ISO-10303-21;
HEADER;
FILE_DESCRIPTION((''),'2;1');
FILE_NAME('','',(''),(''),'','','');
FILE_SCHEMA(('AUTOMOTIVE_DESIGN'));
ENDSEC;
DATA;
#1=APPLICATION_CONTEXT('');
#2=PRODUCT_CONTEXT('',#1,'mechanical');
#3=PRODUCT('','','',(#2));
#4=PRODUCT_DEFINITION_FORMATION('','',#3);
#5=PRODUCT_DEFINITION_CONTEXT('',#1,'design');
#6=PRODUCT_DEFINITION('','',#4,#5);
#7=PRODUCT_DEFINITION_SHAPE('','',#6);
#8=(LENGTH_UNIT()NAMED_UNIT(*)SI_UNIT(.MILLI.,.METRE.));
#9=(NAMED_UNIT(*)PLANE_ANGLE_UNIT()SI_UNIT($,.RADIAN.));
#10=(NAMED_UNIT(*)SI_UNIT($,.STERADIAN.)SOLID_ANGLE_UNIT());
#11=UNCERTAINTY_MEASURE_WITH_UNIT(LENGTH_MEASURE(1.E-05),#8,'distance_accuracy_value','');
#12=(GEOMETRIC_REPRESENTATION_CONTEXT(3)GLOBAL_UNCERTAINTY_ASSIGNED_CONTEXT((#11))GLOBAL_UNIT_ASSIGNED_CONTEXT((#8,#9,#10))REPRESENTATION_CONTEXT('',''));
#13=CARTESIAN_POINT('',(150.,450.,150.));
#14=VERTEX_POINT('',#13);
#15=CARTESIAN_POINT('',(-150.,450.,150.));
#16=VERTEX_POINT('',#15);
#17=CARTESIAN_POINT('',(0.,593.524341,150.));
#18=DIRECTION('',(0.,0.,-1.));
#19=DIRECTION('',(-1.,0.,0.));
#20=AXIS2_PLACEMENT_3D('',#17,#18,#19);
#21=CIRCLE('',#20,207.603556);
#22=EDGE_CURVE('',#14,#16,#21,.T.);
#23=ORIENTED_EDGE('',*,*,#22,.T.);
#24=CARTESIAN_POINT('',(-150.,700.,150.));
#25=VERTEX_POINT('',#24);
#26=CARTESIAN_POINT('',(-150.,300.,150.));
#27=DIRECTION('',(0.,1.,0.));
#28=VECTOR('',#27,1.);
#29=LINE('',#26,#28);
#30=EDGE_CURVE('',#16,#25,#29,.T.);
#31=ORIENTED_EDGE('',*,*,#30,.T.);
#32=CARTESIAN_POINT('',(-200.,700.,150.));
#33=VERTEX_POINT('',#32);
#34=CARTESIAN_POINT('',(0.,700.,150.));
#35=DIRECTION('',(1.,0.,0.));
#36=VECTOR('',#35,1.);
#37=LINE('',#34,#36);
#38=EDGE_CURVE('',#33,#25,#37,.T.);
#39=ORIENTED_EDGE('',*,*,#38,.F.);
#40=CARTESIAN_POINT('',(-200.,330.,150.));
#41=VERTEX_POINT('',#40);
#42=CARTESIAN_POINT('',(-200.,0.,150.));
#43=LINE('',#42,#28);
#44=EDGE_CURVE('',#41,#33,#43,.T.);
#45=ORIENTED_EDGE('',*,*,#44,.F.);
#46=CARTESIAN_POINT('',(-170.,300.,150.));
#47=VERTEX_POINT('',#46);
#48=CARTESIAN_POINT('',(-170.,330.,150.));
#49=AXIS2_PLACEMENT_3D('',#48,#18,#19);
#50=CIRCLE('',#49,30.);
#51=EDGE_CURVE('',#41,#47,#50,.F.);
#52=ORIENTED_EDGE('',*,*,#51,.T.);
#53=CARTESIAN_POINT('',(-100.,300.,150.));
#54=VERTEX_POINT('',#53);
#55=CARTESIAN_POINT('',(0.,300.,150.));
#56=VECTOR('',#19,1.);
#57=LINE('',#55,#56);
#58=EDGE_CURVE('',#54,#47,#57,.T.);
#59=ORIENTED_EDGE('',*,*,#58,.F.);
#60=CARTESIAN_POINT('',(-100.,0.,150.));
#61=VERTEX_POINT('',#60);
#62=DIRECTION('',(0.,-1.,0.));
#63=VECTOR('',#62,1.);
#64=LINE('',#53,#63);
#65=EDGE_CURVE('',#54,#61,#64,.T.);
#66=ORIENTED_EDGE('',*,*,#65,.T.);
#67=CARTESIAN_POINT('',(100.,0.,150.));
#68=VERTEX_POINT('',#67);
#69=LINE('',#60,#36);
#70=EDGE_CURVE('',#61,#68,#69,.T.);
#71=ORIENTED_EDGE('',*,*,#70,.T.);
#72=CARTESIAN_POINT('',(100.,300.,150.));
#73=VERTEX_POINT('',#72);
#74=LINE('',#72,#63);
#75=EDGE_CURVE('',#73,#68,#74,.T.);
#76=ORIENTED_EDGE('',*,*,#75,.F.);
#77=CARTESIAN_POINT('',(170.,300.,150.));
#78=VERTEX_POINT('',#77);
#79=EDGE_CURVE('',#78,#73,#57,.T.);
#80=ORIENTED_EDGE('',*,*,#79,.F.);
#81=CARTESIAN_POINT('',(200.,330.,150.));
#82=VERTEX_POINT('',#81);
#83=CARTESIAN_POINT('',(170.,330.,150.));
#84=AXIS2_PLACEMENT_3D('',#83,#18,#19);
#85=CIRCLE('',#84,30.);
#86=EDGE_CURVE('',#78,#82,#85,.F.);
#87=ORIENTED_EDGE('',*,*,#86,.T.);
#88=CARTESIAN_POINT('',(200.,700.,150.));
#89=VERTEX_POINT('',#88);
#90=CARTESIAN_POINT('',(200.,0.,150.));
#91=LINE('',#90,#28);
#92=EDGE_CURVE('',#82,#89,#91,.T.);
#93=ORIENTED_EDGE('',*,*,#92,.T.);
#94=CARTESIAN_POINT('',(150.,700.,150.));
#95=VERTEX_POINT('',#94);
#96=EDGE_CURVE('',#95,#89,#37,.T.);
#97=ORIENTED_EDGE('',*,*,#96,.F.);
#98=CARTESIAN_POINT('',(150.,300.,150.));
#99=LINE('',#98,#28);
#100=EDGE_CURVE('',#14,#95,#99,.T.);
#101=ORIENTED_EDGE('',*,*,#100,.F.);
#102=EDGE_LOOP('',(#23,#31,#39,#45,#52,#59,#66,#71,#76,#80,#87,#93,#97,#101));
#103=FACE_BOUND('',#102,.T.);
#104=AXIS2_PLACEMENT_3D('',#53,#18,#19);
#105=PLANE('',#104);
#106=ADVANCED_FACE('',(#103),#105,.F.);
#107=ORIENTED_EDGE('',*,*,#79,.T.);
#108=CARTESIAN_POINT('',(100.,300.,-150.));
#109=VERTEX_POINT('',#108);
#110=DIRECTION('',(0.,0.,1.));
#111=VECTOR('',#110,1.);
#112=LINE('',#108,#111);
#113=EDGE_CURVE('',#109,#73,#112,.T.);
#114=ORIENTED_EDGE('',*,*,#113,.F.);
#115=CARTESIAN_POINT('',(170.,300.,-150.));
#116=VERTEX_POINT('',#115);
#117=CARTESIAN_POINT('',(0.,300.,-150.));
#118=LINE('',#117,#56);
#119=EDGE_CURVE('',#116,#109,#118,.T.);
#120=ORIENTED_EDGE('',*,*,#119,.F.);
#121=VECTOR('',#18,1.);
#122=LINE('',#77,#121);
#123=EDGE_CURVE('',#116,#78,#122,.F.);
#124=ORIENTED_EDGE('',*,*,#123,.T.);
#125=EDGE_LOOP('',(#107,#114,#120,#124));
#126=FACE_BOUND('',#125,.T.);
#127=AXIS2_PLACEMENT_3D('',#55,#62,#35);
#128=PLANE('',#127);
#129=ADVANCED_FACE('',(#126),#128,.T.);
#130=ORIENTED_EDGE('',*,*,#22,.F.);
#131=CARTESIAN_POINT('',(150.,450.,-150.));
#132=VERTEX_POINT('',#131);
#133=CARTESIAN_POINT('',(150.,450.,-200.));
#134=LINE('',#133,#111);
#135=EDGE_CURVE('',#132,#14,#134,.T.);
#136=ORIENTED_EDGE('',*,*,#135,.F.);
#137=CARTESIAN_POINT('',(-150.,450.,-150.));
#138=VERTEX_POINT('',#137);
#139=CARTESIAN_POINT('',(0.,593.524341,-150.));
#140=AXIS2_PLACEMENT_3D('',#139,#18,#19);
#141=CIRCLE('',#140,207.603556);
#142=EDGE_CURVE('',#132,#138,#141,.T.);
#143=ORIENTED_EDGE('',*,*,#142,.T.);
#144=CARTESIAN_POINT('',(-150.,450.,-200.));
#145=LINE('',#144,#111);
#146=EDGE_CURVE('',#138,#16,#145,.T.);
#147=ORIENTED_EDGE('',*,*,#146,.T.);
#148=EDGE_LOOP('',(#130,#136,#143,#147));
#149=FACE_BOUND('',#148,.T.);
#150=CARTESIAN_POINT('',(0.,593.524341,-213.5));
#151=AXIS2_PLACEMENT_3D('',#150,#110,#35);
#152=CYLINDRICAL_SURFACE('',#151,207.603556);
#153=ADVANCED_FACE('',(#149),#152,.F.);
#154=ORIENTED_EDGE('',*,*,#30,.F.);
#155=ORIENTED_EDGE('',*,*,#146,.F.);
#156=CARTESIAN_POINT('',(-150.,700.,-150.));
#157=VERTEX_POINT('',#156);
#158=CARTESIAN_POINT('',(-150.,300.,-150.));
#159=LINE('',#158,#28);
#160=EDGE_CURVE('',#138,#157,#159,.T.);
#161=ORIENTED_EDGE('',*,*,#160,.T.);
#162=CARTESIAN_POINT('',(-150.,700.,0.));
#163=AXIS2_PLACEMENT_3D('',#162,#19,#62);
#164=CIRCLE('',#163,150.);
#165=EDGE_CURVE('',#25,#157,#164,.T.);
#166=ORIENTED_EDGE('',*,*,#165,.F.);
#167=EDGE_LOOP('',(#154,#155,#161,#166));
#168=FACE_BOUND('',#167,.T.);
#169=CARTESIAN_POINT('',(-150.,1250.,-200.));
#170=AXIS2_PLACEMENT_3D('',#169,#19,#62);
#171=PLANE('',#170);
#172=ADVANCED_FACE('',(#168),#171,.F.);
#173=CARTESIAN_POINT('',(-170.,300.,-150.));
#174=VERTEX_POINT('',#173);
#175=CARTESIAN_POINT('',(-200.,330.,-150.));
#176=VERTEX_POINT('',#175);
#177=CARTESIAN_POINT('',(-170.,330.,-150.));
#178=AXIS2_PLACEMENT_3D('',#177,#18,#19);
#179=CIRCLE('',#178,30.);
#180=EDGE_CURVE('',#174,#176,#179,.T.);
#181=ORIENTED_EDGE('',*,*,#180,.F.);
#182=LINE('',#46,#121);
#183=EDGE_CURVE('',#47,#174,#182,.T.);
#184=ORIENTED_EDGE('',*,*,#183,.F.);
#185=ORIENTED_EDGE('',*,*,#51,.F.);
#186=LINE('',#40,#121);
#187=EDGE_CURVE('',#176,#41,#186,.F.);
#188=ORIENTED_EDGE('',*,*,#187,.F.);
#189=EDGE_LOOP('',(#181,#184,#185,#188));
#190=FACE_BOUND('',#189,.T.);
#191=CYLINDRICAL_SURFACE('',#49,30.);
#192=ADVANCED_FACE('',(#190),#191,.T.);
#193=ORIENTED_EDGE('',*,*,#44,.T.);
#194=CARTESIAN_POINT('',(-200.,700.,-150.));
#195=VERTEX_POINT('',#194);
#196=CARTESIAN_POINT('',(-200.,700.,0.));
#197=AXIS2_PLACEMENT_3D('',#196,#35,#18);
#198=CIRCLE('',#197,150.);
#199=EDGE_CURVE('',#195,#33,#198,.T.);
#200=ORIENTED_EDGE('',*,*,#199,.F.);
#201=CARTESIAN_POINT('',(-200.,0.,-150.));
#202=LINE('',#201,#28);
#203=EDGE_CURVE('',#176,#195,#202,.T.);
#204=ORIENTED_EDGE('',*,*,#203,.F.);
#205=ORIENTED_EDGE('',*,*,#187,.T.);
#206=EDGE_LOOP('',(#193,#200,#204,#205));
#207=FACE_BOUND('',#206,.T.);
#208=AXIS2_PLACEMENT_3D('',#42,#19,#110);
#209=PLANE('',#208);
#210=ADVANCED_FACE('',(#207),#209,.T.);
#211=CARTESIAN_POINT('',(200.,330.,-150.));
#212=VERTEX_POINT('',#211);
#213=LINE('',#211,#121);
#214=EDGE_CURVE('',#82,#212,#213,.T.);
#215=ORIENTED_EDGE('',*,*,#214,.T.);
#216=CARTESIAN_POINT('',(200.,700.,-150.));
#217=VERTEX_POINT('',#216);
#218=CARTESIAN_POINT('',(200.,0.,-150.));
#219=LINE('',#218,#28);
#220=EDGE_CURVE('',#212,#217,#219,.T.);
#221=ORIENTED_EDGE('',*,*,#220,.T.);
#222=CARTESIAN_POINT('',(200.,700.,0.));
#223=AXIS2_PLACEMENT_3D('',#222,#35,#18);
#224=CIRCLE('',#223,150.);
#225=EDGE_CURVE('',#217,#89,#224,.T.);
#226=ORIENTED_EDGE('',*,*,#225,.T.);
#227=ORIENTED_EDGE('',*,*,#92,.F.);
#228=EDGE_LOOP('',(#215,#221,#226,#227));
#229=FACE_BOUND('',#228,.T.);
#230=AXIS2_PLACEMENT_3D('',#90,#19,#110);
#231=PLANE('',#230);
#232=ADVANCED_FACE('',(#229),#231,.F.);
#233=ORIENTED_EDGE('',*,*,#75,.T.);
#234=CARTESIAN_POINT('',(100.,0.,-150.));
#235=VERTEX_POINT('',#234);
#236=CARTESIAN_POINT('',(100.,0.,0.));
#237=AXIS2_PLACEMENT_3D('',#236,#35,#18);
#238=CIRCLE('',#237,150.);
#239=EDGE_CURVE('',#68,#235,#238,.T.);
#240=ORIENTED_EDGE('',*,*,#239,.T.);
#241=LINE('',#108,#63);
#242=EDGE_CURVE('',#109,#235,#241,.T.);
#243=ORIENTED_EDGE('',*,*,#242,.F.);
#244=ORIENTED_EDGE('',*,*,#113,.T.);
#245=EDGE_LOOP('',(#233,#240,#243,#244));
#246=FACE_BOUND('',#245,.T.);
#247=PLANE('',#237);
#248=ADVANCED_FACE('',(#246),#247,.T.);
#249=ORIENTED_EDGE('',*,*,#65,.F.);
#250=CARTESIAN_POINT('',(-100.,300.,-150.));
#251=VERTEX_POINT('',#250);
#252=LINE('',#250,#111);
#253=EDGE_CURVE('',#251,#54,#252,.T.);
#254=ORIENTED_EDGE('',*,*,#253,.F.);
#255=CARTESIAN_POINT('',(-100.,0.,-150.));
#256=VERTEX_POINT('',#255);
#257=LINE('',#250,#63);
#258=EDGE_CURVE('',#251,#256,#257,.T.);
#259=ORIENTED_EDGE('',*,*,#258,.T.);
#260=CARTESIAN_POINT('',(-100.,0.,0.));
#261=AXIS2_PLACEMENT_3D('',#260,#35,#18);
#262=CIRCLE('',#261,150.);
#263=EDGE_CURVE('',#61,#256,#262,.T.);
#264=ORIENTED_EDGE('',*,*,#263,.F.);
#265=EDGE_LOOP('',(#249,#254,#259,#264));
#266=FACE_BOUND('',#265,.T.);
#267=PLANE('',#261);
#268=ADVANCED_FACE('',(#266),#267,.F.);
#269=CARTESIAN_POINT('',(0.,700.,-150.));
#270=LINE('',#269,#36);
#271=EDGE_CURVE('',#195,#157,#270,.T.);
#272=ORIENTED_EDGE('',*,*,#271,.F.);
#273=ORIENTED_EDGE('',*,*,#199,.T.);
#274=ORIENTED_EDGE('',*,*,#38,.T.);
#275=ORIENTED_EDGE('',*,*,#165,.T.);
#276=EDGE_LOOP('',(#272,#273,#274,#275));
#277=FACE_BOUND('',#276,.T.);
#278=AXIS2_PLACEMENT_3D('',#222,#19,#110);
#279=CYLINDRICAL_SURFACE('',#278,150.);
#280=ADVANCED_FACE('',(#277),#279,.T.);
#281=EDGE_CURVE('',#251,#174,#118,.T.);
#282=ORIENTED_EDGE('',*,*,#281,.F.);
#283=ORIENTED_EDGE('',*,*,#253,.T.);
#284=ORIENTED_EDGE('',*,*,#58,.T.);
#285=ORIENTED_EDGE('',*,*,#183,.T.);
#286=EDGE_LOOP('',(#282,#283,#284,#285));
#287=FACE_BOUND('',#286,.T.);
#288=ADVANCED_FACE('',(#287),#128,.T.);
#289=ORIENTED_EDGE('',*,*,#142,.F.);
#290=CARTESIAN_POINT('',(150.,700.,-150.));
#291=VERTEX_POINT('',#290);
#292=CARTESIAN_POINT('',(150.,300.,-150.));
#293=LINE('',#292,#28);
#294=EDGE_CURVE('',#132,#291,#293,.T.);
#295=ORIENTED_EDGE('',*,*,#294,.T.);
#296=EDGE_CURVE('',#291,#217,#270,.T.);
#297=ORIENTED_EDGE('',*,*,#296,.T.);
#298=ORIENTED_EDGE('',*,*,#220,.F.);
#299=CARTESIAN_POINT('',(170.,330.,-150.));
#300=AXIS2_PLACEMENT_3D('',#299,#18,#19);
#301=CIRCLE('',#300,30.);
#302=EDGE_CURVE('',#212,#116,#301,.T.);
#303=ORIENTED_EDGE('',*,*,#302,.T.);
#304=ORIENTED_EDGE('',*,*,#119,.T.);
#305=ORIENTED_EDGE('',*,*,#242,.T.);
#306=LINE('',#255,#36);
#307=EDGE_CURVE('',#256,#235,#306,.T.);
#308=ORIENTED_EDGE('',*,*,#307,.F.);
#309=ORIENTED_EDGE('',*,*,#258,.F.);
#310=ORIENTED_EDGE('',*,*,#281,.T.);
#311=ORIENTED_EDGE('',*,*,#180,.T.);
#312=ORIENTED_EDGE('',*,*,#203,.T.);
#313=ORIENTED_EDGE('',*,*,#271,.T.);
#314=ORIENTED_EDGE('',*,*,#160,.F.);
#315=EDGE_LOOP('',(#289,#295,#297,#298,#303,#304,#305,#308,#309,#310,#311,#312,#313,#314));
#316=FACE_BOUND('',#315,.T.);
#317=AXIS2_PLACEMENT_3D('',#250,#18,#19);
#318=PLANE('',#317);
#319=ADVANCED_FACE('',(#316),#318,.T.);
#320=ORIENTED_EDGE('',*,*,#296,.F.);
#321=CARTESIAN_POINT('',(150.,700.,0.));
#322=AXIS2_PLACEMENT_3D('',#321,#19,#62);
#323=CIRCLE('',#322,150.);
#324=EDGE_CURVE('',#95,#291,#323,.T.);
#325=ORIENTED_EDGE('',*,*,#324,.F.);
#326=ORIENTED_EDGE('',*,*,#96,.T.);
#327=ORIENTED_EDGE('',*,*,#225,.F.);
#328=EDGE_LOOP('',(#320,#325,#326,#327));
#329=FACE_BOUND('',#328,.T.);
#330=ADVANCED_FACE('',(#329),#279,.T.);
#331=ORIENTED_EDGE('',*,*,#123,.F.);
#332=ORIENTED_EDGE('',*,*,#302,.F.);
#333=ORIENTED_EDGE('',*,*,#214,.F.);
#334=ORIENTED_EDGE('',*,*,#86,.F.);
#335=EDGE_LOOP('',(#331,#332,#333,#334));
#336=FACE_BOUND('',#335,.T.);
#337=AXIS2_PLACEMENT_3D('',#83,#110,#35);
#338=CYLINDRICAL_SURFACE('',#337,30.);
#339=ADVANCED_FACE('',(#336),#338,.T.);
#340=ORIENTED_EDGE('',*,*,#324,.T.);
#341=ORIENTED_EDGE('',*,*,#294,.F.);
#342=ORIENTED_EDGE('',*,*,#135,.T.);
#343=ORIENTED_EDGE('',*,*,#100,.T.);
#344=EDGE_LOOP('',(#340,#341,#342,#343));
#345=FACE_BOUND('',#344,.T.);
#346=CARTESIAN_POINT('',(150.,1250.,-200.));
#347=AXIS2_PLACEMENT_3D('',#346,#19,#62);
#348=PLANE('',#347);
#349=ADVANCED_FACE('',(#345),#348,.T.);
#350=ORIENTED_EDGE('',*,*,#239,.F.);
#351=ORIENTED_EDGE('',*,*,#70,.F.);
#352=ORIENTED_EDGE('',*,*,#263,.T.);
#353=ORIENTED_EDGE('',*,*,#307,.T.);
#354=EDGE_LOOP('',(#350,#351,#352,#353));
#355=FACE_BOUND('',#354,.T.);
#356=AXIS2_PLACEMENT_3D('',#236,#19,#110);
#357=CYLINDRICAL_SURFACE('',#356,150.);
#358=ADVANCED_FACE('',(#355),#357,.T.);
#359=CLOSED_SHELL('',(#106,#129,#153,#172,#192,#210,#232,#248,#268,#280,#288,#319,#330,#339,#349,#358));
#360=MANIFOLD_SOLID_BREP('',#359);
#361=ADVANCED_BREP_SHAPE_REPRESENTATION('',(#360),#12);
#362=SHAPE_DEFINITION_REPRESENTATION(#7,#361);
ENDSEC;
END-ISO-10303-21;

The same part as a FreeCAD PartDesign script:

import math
import FreeCAD as App
import Part
import Sketcher

V = App.Vector


def edges_at(feature, points):
    """Names of the edges that pass closest to the given points."""
    edges = feature.Shape.Edges
    near = lambda p: min(range(len(edges)), key=lambda i: edges[i].distToShape(Part.Vertex(*p))[0])
    return sorted({f"Edge{near(p) + 1}" for p in points})

doc = App.newDocument("Part")
body = doc.addObject("PartDesign::Body", "Body")

# Sketch on YZ plane
sketch1 = body.newObject("Sketcher::SketchObject", "Sketch")
sketch1.AttachmentSupport = (doc.getObject("YZ_Plane"), [""])
sketch1.MapMode = "FlatFace"
sketch1.addGeometry(Part.Circle(V(0, 0, 0), V(0, 0, 1), 150), False)
sketch1.addConstraint([
    Sketcher.Constraint("Coincident", 0, 3, -1, 1),
    Sketcher.Constraint("Diameter", 0, 300.0),
])
pad1 = body.newObject("PartDesign::Pad", "Pad")
pad1.Profile = sketch1
pad1.Length = 200
pad1.Midplane = True

# Sketch on XZ plane
sketch2 = body.newObject("Sketcher::SketchObject", "Sketch001")
sketch2.AttachmentSupport = (doc.getObject("XZ_Plane"), [""])
sketch2.MapMode = "FlatFace"
sketch2.addGeometry([
    Part.LineSegment(V(-100, -150, 0), V(-100, 150, 0)),
    Part.LineSegment(V(-100, 150, 0), V(100, 150, 0)),
    Part.LineSegment(V(100, 150, 0), V(100, -150, 0)),
    Part.LineSegment(V(100, -150, 0), V(-100, -150, 0)),
], False)
sketch2.addConstraint([
    Sketcher.Constraint("Coincident", 0, 2, 1, 1),
    Sketcher.Constraint("Coincident", 1, 2, 2, 1),
    Sketcher.Constraint("Coincident", 2, 2, 3, 1),
    Sketcher.Constraint("Coincident", 3, 2, 0, 1),
    Sketcher.Constraint("Vertical", 0),
    Sketcher.Constraint("Horizontal", 1),
    Sketcher.Constraint("Vertical", 2),
    Sketcher.Constraint("Horizontal", 3),
    Sketcher.Constraint("Symmetric", 0, 2, 2, 2, -1, 1),
    Sketcher.Constraint("DistanceX", 1, 1, 1, 2, 200.0),
    Sketcher.Constraint("DistanceY", 0, 1, 0, 2, 300.0),
])
pad2 = body.newObject("PartDesign::Pad", "Pad001")
pad2.Profile = sketch2
pad2.Length = 300
pad2.Reversed = True

# Sketch on XY plane
sketch3 = body.newObject("Sketcher::SketchObject", "Sketch002")
sketch3.AttachmentSupport = (doc.getObject("XY_Plane"), [""])
sketch3.MapMode = "FlatFace"
sketch3.addGeometry([
    Part.LineSegment(V(-200, 700, 0), V(-200, 300, 0)),
    Part.LineSegment(V(-200, 300, 0), V(200, 300, 0)),
    Part.LineSegment(V(200, 300, 0), V(200, 700, 0)),
    Part.LineSegment(V(200, 700, 0), V(-200, 700, 0)),
], False)
sketch3.addConstraint([
    Sketcher.Constraint("Coincident", 0, 2, 1, 1),
    Sketcher.Constraint("Coincident", 1, 2, 2, 1),
    Sketcher.Constraint("Coincident", 2, 2, 3, 1),
    Sketcher.Constraint("Coincident", 3, 2, 0, 1),
    Sketcher.Constraint("Vertical", 0),
    Sketcher.Constraint("Horizontal", 1),
    Sketcher.Constraint("Vertical", 2),
    Sketcher.Constraint("Horizontal", 3),
    Sketcher.Constraint("Equal", 3, 0),
    Sketcher.Constraint("DistanceX", 1, 1, 1, 2, 400.0),
    Sketcher.Constraint("DistanceX", 0, 2, -1, 1, 200.0),
    Sketcher.Constraint("DistanceY", -1, 1, 0, 2, 300.0),
])
pad3 = body.newObject("PartDesign::Pad", "Pad002")
pad3.Profile = sketch3
pad3.Length = 300
pad3.Midplane = True

# Sketch on YZ plane
sketch4 = body.newObject("Sketcher::SketchObject", "Sketch003")
sketch4.AttachmentSupport = (doc.getObject("YZ_Plane"), [""])
sketch4.MapMode = "FlatFace"
sketch4.addGeometry(Part.Circle(V(700, 0, 0), V(0, 0, 1), 150), False)
sketch4.addConstraint([
    Sketcher.Constraint("PointOnObject", 0, 3, -1),
    Sketcher.Constraint("Diameter", 0, 300.0),
    Sketcher.Constraint("DistanceX", -1, 1, 0, 3, 700.0),
])
pad4 = body.newObject("PartDesign::Pad", "Pad003")
pad4.Profile = sketch4
pad4.Length = 400
pad4.Midplane = True

# Sketch on XY plane
sketch5 = body.newObject("Sketcher::SketchObject", "Sketch004")
sketch5.AttachmentSupport = (doc.getObject("XY_Plane"), [""])
sketch5.MapMode = "FlatFace"
sketch5.addGeometry([
    Part.LineSegment(V(-150, 1250, 0), V(-150, 450, 0)),
    Part.LineSegment(V(-150, 450, 0), V(150, 450, 0)),
    Part.LineSegment(V(150, 450, 0), V(150, 1250, 0)),
    Part.LineSegment(V(150, 1250, 0), V(-150, 1250, 0)),
], False)
sketch5.addConstraint([
    Sketcher.Constraint("Coincident", 0, 2, 1, 1),
    Sketcher.Constraint("Coincident", 1, 2, 2, 1),
    Sketcher.Constraint("Coincident", 2, 2, 3, 1),
    Sketcher.Constraint("Coincident", 3, 2, 0, 1),
    Sketcher.Constraint("Vertical", 0),
    Sketcher.Constraint("Horizontal", 1),
    Sketcher.Constraint("Vertical", 2),
    Sketcher.Constraint("Horizontal", 3),
    Sketcher.Constraint("DistanceX", 1, 1, 1, 2, 300.0),
    Sketcher.Constraint("DistanceY", 0, 2, 0, 1, 800.0),
    Sketcher.Constraint("DistanceX", 0, 2, -1, 1, 150.0),
    Sketcher.Constraint("DistanceY", -1, 1, 0, 2, 450.0),
])
pocket1 = body.newObject("PartDesign::Pocket", "Pocket")
pocket1.Profile = sketch5
pocket1.Length = 400
pocket1.Midplane = True
doc.recompute()

fillet = body.newObject("PartDesign::Fillet", "Fillet")
fillet.Base = (pocket1, edges_at(pocket1, [(-200, 300, 0)]))
fillet.Radius = 30
doc.recompute()

fillet2 = body.newObject("PartDesign::Fillet", "Fillet001")
fillet2.Base = (fillet, edges_at(fillet, [(200, 300, 0)]))
fillet2.Radius = 30

# Sketch on XY plane
sketch6 = body.newObject("Sketcher::SketchObject", "Sketch005")
sketch6.AttachmentSupport = (doc.getObject("XY_Plane"), [""])
sketch6.MapMode = "FlatFace"
sketch6.addGeometry([
    Part.LineSegment(V(150, 450, 0), V(-150, 450, 0)),
    Part.ArcOfCircle(Part.Circle(V(0, 594, 0), V(0, 0, 1), 208), math.radians(-136), math.radians(-44)),
], False)
sketch6.addConstraint([
    Sketcher.Constraint("Coincident", 0, 1, 1, 2),
    Sketcher.Constraint("Coincident", 1, 1, 0, 2),
    Sketcher.Constraint("Horizontal", 0),
    Sketcher.Constraint("PointOnObject", 1, 3, -2),
    Sketcher.Constraint("DistanceX", 0, 2, 0, 1, 300.0),
    Sketcher.Constraint("DistanceY", -1, 1, 0, 1, 450.0),
    Sketcher.Constraint("Radius", 1, 207.603556),
])
pocket2 = body.newObject("PartDesign::Pocket", "Pocket001")
pocket2.Profile = sketch6
pocket2.Length = 427
pocket2.Midplane = True

doc.recompute()
